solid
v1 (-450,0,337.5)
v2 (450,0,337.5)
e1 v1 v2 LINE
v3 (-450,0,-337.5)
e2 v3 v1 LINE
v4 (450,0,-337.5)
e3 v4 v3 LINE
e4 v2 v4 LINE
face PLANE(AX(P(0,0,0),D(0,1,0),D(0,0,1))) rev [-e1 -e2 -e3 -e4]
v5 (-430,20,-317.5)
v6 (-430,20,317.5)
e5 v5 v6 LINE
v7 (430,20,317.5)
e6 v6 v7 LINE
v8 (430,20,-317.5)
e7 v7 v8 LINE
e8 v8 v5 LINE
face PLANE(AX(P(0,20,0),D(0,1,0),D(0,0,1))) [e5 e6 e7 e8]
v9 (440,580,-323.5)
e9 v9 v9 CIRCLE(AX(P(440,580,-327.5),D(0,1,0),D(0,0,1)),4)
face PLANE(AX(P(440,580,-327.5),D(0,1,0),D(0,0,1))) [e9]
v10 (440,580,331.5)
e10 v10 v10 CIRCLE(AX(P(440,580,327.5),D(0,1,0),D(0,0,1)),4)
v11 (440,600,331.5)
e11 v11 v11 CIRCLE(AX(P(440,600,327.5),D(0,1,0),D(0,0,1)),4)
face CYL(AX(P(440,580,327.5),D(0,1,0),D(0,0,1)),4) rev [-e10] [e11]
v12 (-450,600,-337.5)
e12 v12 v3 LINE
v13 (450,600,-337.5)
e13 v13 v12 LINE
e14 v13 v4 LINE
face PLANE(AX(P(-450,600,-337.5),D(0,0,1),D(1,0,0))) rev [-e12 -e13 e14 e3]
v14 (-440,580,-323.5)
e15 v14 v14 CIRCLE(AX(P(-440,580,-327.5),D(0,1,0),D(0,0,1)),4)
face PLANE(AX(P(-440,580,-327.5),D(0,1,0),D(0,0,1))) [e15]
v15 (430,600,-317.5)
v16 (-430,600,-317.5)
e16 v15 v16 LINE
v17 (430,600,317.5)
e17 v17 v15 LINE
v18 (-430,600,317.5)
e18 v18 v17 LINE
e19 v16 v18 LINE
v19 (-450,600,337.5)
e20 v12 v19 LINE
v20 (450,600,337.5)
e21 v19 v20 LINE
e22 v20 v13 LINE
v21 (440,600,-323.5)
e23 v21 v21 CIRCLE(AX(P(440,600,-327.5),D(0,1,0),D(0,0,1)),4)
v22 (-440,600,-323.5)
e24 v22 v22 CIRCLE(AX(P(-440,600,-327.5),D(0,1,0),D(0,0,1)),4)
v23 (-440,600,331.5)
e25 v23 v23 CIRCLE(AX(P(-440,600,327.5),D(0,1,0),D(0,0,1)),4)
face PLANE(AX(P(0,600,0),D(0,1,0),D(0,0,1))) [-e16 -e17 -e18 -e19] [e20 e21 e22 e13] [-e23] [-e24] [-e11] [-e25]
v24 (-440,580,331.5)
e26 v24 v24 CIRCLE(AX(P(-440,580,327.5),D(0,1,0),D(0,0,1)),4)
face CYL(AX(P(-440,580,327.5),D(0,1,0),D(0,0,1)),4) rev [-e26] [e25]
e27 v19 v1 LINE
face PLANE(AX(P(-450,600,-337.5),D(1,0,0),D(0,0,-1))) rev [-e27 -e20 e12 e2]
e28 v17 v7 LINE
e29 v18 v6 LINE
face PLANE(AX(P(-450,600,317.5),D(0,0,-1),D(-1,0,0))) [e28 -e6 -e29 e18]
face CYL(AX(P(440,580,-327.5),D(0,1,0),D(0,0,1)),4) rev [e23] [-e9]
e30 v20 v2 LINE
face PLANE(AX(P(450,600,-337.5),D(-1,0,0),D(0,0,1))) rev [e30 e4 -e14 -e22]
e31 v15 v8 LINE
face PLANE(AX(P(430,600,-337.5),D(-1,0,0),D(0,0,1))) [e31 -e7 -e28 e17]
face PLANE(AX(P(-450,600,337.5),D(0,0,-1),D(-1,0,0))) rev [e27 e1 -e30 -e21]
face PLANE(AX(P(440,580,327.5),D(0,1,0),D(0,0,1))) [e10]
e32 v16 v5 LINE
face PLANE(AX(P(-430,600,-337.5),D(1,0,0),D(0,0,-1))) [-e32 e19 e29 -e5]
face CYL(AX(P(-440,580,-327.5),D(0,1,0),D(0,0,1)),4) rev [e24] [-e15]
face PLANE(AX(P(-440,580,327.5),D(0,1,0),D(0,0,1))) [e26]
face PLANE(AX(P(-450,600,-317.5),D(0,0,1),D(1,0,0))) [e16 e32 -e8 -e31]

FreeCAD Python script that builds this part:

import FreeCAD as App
import Part
import Sketcher
Q = App.Units.Quantity


def faces_at(feature, points):
    """Names of the faces that lie closest to the given points."""
    faces = feature.Shape.Faces
    near = lambda p: min(range(len(faces)), key=lambda i: faces[i].distToShape(Part.Vertex(*p))[0])
    return sorted({f"Face{near(p) + 1}" for p in points})

doc = App.newDocument("Part")
body = doc.addObject("PartDesign::Body", "Body")

sketch1 = body.newObject("Sketcher::SketchObject", "Sketch")
sketch1.AttachmentSupport = (doc.getObject("XZ_Plane"), [""])
sketch1.MapMode = "FlatFace"
sketch1.addGeometry(Part.LineSegment(App.Vector(-450, -338, 0), App.Vector(-450, 338, 0)), False)
sketch1.addGeometry(Part.LineSegment(App.Vector(-450, 338, 0), App.Vector(450, 338, 0)), False)
sketch1.addGeometry(Part.LineSegment(App.Vector(450, 338, 0), App.Vector(450, -338, 0)), False)
sketch1.addGeometry(Part.LineSegment(App.Vector(450, -338, 0), App.Vector(-450, -338, 0)), False)
sketch1.addConstraint(Sketcher.Constraint("Coincident", 0, 2, 1, 1))
sketch1.addConstraint(Sketcher.Constraint("Coincident", 1, 2, 2, 1))
sketch1.addConstraint(Sketcher.Constraint("Coincident", 2, 2, 3, 1))
sketch1.addConstraint(Sketcher.Constraint("Coincident", 3, 2, 0, 1))
sketch1.addConstraint(Sketcher.Constraint("Vertical", 0))
sketch1.addConstraint(Sketcher.Constraint("Horizontal", 1))
sketch1.addConstraint(Sketcher.Constraint("Vertical", 2))
sketch1.addConstraint(Sketcher.Constraint("Horizontal", 3))
sketch1.addConstraint(Sketcher.Constraint("Symmetric", 0, 2, 2, 2, -1, 1))
sketch1.addConstraint(Sketcher.Constraint("DistanceX", 1, 1, 1, 2, Q("900 mm")))
sketch1.addConstraint(Sketcher.Constraint("DistanceY", 0, 1, 0, 2, Q("675 mm")))
pad1 = body.newObject("PartDesign::Pad", "Pad")
pad1.Profile = sketch1
pad1.Length = 600
pad1.Reversed = True
doc.recompute()

thickness = body.newObject("PartDesign::Thickness", "Thickness")
thickness.Base = (pad1, faces_at(pad1, [(0, 600, 0)]))
thickness.Value = 20
thickness.Reversed = True
thickness.Join = "Intersection"

sketch2 = body.newObject("Sketcher::SketchObject", "Sketch001")
sketch2.AttachmentSupport = (doc.getObject("XZ_Plane"), [""])
sketch2.MapMode = "FlatFace"
sketch2.AttachmentOffset = App.Placement(App.Vector(0, 0, -600), App.Rotation())
sketch2.addGeometry(Part.Circle(App.Vector(-440, 327.5, 0), App.Vector(0, 0, 1), 4), False)
sketch2.addConstraint(Sketcher.Constraint("Diameter", 0, Q("8 mm")))
sketch2.addConstraint(Sketcher.Constraint("DistanceX", 0, 3, -1, 1, Q("440 mm")))
sketch2.addConstraint(Sketcher.Constraint("DistanceY", -1, 1, 0, 3, Q("327.5 mm")))
pocket1 = body.newObject("PartDesign::Pocket", "Pocket")
pocket1.Profile = sketch2
pocket1.Length = 20
pocket1.Reversed = True

sketch3 = body.newObject("Sketcher::SketchObject", "Sketch002")
sketch3.AttachmentSupport = (doc.getObject("XZ_Plane"), [""])
sketch3.MapMode = "FlatFace"
sketch3.AttachmentOffset = App.Placement(App.Vector(0, 0, -600), App.Rotation())
sketch3.addGeometry(Part.Circle(App.Vector(440, 327.5, 0), App.Vector(0, 0, 1), 4), False)
sketch3.addConstraint(Sketcher.Constraint("Diameter", 0, Q("8 mm")))
sketch3.addConstraint(Sketcher.Constraint("DistanceX", -1, 1, 0, 3, Q("440 mm")))
sketch3.addConstraint(Sketcher.Constraint("DistanceY", -1, 1, 0, 3, Q("327.5 mm")))
pocket2 = body.newObject("PartDesign::Pocket", "Pocket001")
pocket2.Profile = sketch3
pocket2.Length = 20
pocket2.Reversed = True

sketch4 = body.newObject("Sketcher::SketchObject", "Sketch003")
sketch4.AttachmentSupport = (doc.getObject("XZ_Plane"), [""])
sketch4.MapMode = "FlatFace"
sketch4.AttachmentOffset = App.Placement(App.Vector(0, 0, -600), App.Rotation())
sketch4.addGeometry(Part.Circle(App.Vector(440, -327.5, 0), App.Vector(0, 0, 1), 4), False)
sketch4.addConstraint(Sketcher.Constraint("Diameter", 0, Q("8 mm")))
sketch4.addConstraint(Sketcher.Constraint("DistanceX", -1, 1, 0, 3, Q("440 mm")))
sketch4.addConstraint(Sketcher.Constraint("DistanceY", 0, 3, -1, 1, Q("327.5 mm")))
pocket3 = body.newObject("PartDesign::Pocket", "Pocket002")
pocket3.Profile = sketch4
pocket3.Length = 20
pocket3.Reversed = True

sketch5 = body.newObject("Sketcher::SketchObject", "Sketch004")
sketch5.AttachmentSupport = (doc.getObject("XZ_Plane"), [""])
sketch5.MapMode = "FlatFace"
sketch5.AttachmentOffset = App.Placement(App.Vector(0, 0, -600), App.Rotation())
sketch5.addGeometry(Part.Circle(App.Vector(-440, -327.5, 0), App.Vector(0, 0, 1), 4), False)
sketch5.addConstraint(Sketcher.Constraint("Diameter", 0, Q("8 mm")))
sketch5.addConstraint(Sketcher.Constraint("DistanceX", 0, 3, -1, 1, Q("440 mm")))
sketch5.addConstraint(Sketcher.Constraint("DistanceY", 0, 3, -1, 1, Q("327.5 mm")))
pocket4 = body.newObject("PartDesign::Pocket", "Pocket003")
pocket4.Profile = sketch5
pocket4.Length = 20
pocket4.Reversed = True

doc.recompute()
